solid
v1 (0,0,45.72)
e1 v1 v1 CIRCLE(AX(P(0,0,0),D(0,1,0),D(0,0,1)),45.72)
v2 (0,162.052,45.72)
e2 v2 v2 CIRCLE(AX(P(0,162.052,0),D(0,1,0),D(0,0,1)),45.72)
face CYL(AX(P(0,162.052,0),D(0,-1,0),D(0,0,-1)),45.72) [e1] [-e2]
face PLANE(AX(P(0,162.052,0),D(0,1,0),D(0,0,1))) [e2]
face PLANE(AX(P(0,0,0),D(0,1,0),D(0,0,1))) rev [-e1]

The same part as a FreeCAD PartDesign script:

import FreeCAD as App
import Part
import Sketcher

V = App.Vector
Q = App.Units.Quantity

doc = App.newDocument("Part")
body = doc.addObject("PartDesign::Body", "Body")

# Sketch on XZ plane
sketch1 = doc.addObject("Sketcher::SketchObject", "Sketch")
body.addObject(sketch1)
sketch1.AttachmentSupport = (doc.XZ_Plane, [""])
sketch1.MapMode = "FlatFace"
sketch1.addGeometry(Part.Circle(V(0, 0, 0), V(0, 0, 1), 46), False)
sketch1.addConstraint([
    Sketcher.Constraint("Coincident", 0, 3, -1, 1),
    Sketcher.Constraint("Diameter", 0, Q("3.6 in")),
])
pad1 = doc.addObject("PartDesign::Pad", "Pad")
body.addObject(pad1)
pad1.Profile = sketch1
pad1.Length = Q("6.38 in")
pad1.Reversed = True

doc.recompute()
